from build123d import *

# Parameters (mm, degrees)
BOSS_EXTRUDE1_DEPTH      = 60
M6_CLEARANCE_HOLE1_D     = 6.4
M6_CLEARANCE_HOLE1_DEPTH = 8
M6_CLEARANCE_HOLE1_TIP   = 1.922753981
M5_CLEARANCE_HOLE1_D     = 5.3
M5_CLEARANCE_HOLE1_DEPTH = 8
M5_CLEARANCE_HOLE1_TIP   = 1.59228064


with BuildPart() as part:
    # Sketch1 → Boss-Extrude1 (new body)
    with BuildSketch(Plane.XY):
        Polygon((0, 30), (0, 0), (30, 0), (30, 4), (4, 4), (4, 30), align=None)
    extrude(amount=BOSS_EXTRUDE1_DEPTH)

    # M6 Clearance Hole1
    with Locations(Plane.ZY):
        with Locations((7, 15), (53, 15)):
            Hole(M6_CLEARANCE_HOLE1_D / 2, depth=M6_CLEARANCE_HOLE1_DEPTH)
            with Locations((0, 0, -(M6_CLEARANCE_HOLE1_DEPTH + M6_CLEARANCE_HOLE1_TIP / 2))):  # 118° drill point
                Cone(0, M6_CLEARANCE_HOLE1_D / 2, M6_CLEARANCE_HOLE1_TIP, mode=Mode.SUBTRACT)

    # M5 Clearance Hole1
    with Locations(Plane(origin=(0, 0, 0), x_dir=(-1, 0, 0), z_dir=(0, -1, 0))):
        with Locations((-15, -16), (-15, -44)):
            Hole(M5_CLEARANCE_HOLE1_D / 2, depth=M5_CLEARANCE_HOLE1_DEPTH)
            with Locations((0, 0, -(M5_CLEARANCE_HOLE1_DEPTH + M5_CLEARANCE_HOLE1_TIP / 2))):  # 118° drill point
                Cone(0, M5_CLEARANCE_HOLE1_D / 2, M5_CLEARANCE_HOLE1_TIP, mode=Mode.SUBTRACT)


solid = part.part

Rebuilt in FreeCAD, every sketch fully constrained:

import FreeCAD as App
import Part
import Sketcher
from FreeCAD import Vector


def add_polygon(sketch, points):
    """Adds a closed chain of lines whose ends are joined by coincident constraints."""
    first, n = sketch.GeometryCount, len(points)
    for a, b in zip(points, points[1:] + points[:1]):
        sketch.addGeometry(Part.LineSegment(App.Vector(*a, 0), App.Vector(*b, 0)), False)
    for i in range(n):
        sketch.addConstraint(Sketcher.Constraint("Coincident", first + i, 2, first + (i + 1) % n, 1))

doc = App.newDocument("Part")
body = doc.addObject("PartDesign::Body", "Body")

sketch1 = body.newObject("Sketcher::SketchObject", "Sketch")
sketch1.AttachmentSupport = (doc.getObject("XY_Plane"), [""])
sketch1.MapMode = "FlatFace"
add_polygon(sketch1, [(0, 30), (0, 0), (30, 0), (30, 4), (4, 4), (4, 30)])
sketch1.addConstraint(Sketcher.Constraint("Vertical", 0))
sketch1.addConstraint(Sketcher.Constraint("Horizontal", 1))
sketch1.addConstraint(Sketcher.Constraint("Vertical", 2))
sketch1.addConstraint(Sketcher.Constraint("Horizontal", 3))
sketch1.addConstraint(Sketcher.Constraint("Vertical", 4))
sketch1.addConstraint(Sketcher.Constraint("Horizontal", 5))
sketch1.addConstraint(Sketcher.Constraint("Coincident", 0, 2, -1, 1))
sketch1.addConstraint(Sketcher.Constraint("Equal", 1, 0))
sketch1.addConstraint(Sketcher.Constraint("Equal", 5, 2))
sketch1.addConstraint(Sketcher.Constraint("DistanceX", 1, 1, 1, 2, 30.0))
sketch1.addConstraint(Sketcher.Constraint("DistanceX", 3, 2, 3, 1, 26.0))
pad1 = body.newObject("PartDesign::Pad", "Pad")
pad1.Profile = sketch1
pad1.Length = 60

sketch2 = body.newObject("Sketcher::SketchObject", "Sketch001")
sketch2.AttachmentSupport = (doc.getObject("YZ_Plane"), [""])
sketch2.MapMode = "FlatFace"
sketch2.addGeometry(Part.Circle(Vector(15, 7, 0), Vector(0, 0, 1), 3.2), False)
sketch2.addGeometry(Part.Circle(Vector(15, 53, 0), Vector(0, 0, 1), 3.2), False)
sketch2.addConstraint(Sketcher.Constraint("Equal", 0, 1))
sketch2.addConstraint(Sketcher.Constraint("Vertical", 0, 3, 1, 3))
sketch2.addConstraint(Sketcher.Constraint("Diameter", 0, 6.4))
sketch2.addConstraint(Sketcher.Constraint("DistanceX", -1, 1, 0, 3, 15.0))
sketch2.addConstraint(Sketcher.Constraint("DistanceY", -1, 1, 0, 3, 7.0))
sketch2.addConstraint(Sketcher.Constraint("DistanceY", -1, 1, 1, 3, 53.0))
doc.recompute()
hole = body.newObject("PartDesign::Hole", "Hole")
hole.Profile = sketch2
hole.ThreadType = "None"
hole.Diameter = 6.4
hole.DepthType = "Dimension"
hole.Depth = 8
hole.DrillPoint = "Angled"
hole.DrillPointAngle = 118
hole.Reversed = True

sketch3 = body.newObject("Sketcher::SketchObject", "Sketch002")
sketch3.AttachmentSupport = (doc.getObject("XZ_Plane"), [""])
sketch3.MapMode = "FlatFace"
sketch3.addGeometry(Part.Circle(Vector(15, 16, 0), Vector(0, 0, 1), 2.65), False)
sketch3.addGeometry(Part.Circle(Vector(15, 44, 0), Vector(0, 0, 1), 2.65), False)
sketch3.addConstraint(Sketcher.Constraint("Equal", 0, 1))
sketch3.addConstraint(Sketcher.Constraint("Vertical", 0, 3, 1, 3))
sketch3.addConstraint(Sketcher.Constraint("Diameter", 0, 5.3))
sketch3.addConstraint(Sketcher.Constraint("DistanceX", -1, 1, 0, 3, 15.0))
sketch3.addConstraint(Sketcher.Constraint("DistanceY", -1, 1, 0, 3, 16.0))
sketch3.addConstraint(Sketcher.Constraint("DistanceY", -1, 1, 1, 3, 44.0))
doc.recompute()
hole2 = body.newObject("PartDesign::Hole", "Hole001")
hole2.Profile = sketch3
hole2.ThreadType = "None"
hole2.Diameter = 5.3
hole2.DepthType = "Dimension"
hole2.Depth = 8
hole2.DrillPoint = "Angled"
hole2.DrillPointAngle = 118

doc.recompute()
